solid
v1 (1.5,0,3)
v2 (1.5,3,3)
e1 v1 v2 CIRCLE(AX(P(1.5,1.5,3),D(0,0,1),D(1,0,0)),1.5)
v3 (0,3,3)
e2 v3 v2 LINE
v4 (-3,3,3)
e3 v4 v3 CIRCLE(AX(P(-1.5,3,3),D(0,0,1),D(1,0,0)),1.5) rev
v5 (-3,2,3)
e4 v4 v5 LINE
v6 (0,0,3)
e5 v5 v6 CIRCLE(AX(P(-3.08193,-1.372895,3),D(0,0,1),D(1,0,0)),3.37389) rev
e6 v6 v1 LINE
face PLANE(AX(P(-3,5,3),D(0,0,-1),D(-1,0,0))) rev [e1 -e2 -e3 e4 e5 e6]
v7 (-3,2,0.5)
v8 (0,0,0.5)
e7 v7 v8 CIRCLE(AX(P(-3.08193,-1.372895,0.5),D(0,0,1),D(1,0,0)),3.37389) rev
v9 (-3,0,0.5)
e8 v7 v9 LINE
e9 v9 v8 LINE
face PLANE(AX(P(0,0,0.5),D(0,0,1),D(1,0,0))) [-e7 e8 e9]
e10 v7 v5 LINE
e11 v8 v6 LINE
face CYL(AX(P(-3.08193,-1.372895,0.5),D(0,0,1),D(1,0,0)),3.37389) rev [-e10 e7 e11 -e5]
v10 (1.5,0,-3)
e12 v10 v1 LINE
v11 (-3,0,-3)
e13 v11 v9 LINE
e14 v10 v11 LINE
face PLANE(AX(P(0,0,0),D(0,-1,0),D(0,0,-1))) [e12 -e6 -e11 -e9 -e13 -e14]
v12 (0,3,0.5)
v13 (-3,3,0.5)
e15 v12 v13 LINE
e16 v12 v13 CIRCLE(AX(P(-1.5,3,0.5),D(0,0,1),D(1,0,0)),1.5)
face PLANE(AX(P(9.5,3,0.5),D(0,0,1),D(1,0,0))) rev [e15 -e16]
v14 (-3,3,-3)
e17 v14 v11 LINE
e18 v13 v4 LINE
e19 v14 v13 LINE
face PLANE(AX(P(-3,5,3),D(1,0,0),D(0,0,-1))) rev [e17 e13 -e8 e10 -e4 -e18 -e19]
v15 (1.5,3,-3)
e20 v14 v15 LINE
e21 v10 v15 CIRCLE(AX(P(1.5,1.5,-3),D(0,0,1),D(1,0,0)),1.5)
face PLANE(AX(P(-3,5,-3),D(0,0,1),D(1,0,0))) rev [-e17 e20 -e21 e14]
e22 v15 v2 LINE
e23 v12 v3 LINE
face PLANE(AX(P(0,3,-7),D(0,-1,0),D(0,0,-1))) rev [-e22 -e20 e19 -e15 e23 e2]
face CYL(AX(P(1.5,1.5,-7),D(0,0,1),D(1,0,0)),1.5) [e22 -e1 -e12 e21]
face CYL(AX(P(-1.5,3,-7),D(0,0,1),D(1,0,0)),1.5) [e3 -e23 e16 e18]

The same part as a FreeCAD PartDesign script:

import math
import FreeCAD as App
import Part
import Sketcher
Q = App.Units.Quantity


def add_polygon(sketch, points):
    """Adds a closed chain of lines whose ends are joined by coincident constraints."""
    first, n = sketch.GeometryCount, len(points)
    for a, b in zip(points, points[1:] + points[:1]):
        sketch.addGeometry(Part.LineSegment(App.Vector(*a, 0), App.Vector(*b, 0)), False)
    for i in range(n):
        sketch.addConstraint(Sketcher.Constraint("Coincident", first + i, 2, first + (i + 1) % n, 1))

doc = App.newDocument("Part")
body = doc.addObject("PartDesign::Body", "Body")

# Sketch on XZ plane
sketch1 = doc.addObject("Sketcher::SketchObject", "Sketch")
body.addObject(sketch1)
sketch1.AttachmentSupport = (doc.XZ_Plane, [""])
sketch1.MapMode = "FlatFace"
add_polygon(sketch1, [(-3, -3), (-3, 3), (3, 3), (3, -3)])  # lines 0-3
sketch1.addConstraint([
    Sketcher.Constraint("Vertical", 0),
    Sketcher.Constraint("Horizontal", 1),
    Sketcher.Constraint("Vertical", 2),
    Sketcher.Constraint("Horizontal", 3),
    Sketcher.Constraint("Symmetric", 0, 2, 2, 2, -1, 1),
    Sketcher.Constraint("Equal", 3, 0),
    Sketcher.Constraint("DistanceX", 1, 1, 1, 2, Q("6 mm")),
])
pad1 = doc.addObject("PartDesign::Pad", "Pad")
body.addObject(pad1)
pad1.Profile = sketch1
pad1.Length = 5
pad1.Reversed = True

# Sketch on XY plane
sketch2 = doc.addObject("Sketcher::SketchObject", "Sketch001")
body.addObject(sketch2)
sketch2.AttachmentSupport = (doc.XY_Plane, [""])
sketch2.MapMode = "FlatFace"
sketch2.AttachmentOffset = App.Placement(App.Vector(0, 0, 3), App.Rotation())
sketch2.addGeometry([
    Part.ArcOfCircle(Part.Circle(App.Vector(-1.5, 3, 0), App.Vector(0, 0, 1), 1.5), math.radians(0), math.radians(180)),  # 0
    Part.LineSegment(App.Vector(0, 3, 0), App.Vector(1.5, 3, 0)),  # 1
    Part.ArcOfCircle(Part.Circle(App.Vector(1.5, 1.5, 0), App.Vector(0, 0, 1), 1.5), math.radians(0), math.radians(90)),  # 2
    Part.LineSegment(App.Vector(3, 1.5, 0), App.Vector(3, 5, 0)),  # 3
    Part.LineSegment(App.Vector(3, 5, 0), App.Vector(-3, 5, 0)),  # 4
    Part.LineSegment(App.Vector(-3, 5, 0), App.Vector(-3, 3, 0)),  # 5
    Part.LineSegment(App.Vector(3, 0, 0), App.Vector(3, 1.5, 0)),  # 6
    Part.ArcOfCircle(Part.Circle(App.Vector(1.5, 1.5, 0), App.Vector(0, 0, 1), 1.5), math.radians(-90), math.radians(0)),  # 7
    Part.LineSegment(App.Vector(1.5, 0, 0), App.Vector(3, 0, 0)),  # 8
], False)
sketch2.addConstraint([
    Sketcher.Constraint("Coincident", 0, 1, 1, 1),
    Sketcher.Constraint("Tangent", 1, 2, 2, 2),
    Sketcher.Constraint("Tangent", 2, 1, 3, 1),
    Sketcher.Constraint("Coincident", 3, 2, 4, 1),
    Sketcher.Constraint("Coincident", 4, 2, 5, 1),
    Sketcher.Constraint("Tangent", 5, 2, 0, 2),
    Sketcher.Constraint("Tangent", 6, 2, 7, 2),
    Sketcher.Constraint("Tangent", 7, 1, 8, 1),
    Sketcher.Constraint("Coincident", 8, 2, 6, 1),
    Sketcher.Constraint("Horizontal", 1),
    Sketcher.Constraint("Vertical", 3),
    Sketcher.Constraint("Horizontal", 4),
    Sketcher.Constraint("Vertical", 5),
    Sketcher.Constraint("Vertical", 6),
    Sketcher.Constraint("Horizontal", 8),
    Sketcher.Constraint("Coincident", 7, 3, 2, 3),
    Sketcher.Constraint("Equal", 0, 2),
    Sketcher.Constraint("Equal", 2, 7),
    Sketcher.Constraint("PointOnObject", 0, 1, -2),
    Sketcher.Constraint("PointOnObject", 7, 1, -1),
    Sketcher.Constraint("Horizontal", 1, 2, 5, 2),
    Sketcher.Constraint("Equal", 1, 8),
    Sketcher.Constraint("Radius", 0, Q("1.5 mm")),
    Sketcher.Constraint("DistanceY", 5, 2, 5, 1, Q("2 mm")),
])
pocket1 = doc.addObject("PartDesign::Pocket", "Pocket")
body.addObject(pocket1)
pocket1.Profile = sketch2
pocket1.Length = 10

# Sketch on XY plane
sketch3 = doc.addObject("Sketcher::SketchObject", "Sketch002")
body.addObject(sketch3)
sketch3.AttachmentSupport = (doc.XY_Plane, [""])
sketch3.MapMode = "FlatFace"
sketch3.AttachmentOffset = App.Placement(App.Vector(0, 0, 3), App.Rotation())
sketch3.addGeometry([
    Part.LineSegment(App.Vector(-3, 2, 0), App.Vector(-3, 0, 0)),
    Part.LineSegment(App.Vector(-3, 0, 0), App.Vector(0, 0, 0)),
    Part.ArcOfCircle(Part.Circle(App.Vector(-3.1, -1.4, 0), App.Vector(0, 0, 1), 3.4), math.radians(24), math.radians(89)),
], False)
sketch3.addConstraint([
    Sketcher.Constraint("Coincident", 0, 2, 1, 1),
    Sketcher.Constraint("Coincident", 1, 2, 2, 1),
    Sketcher.Constraint("Coincident", 2, 2, 0, 1),
    Sketcher.Constraint("Vertical", 0),
    Sketcher.Constraint("Horizontal", 1),
    Sketcher.Constraint("Coincident", 1, 2, -1, 1),
    Sketcher.Constraint("DistanceX", 1, 1, 1, 2, Q("3 mm")),
    Sketcher.Constraint("DistanceY", 0, 2, 0, 1, Q("2 mm")),
    Sketcher.Constraint("Radius", 2, Q("3.37389 mm")),
])
pocket2 = doc.addObject("PartDesign::Pocket", "Pocket001")
body.addObject(pocket2)
pocket2.Profile = sketch3
pocket2.Type = "TwoLengths"
pocket2.Length = 1
pocket2.Length2 = 2.5
pocket2.Reversed = True

# Sketch on YZ plane
sketch4 = doc.addObject("Sketcher::SketchObject", "Sketch003")
body.addObject(sketch4)
sketch4.AttachmentSupport = (doc.YZ_Plane, [""])
sketch4.MapMode = "FlatFace"
sketch4.AttachmentOffset = App.Placement(App.Vector(0, 0, -3), App.Rotation())
add_polygon(sketch4, [(4.5, -3), (3, -3), (3, 0.5), (4.5, 0.5)])  # lines 0-3
sketch4.addConstraint([
    Sketcher.Constraint("Horizontal", 0),
    Sketcher.Constraint("Vertical", 1),
    Sketcher.Constraint("Horizontal", 2),
    Sketcher.Constraint("Vertical", 3),
    Sketcher.Constraint("DistanceX", 0, 2, 0, 1, Q("1.5 mm")),
    Sketcher.Constraint("DistanceY", 1, 1, 1, 2, Q("3.5 mm")),
    Sketcher.Constraint("DistanceX", -1, 1, 0, 2, Q("3 mm")),
    Sketcher.Constraint("DistanceY", 0, 2, -1, 1, Q("3 mm")),
])
pocket3 = doc.addObject("PartDesign::Pocket", "Pocket002")
body.addObject(pocket3)
pocket3.Profile = sketch4
pocket3.Length = 12.5
pocket3.Reversed = True

doc.recompute()
